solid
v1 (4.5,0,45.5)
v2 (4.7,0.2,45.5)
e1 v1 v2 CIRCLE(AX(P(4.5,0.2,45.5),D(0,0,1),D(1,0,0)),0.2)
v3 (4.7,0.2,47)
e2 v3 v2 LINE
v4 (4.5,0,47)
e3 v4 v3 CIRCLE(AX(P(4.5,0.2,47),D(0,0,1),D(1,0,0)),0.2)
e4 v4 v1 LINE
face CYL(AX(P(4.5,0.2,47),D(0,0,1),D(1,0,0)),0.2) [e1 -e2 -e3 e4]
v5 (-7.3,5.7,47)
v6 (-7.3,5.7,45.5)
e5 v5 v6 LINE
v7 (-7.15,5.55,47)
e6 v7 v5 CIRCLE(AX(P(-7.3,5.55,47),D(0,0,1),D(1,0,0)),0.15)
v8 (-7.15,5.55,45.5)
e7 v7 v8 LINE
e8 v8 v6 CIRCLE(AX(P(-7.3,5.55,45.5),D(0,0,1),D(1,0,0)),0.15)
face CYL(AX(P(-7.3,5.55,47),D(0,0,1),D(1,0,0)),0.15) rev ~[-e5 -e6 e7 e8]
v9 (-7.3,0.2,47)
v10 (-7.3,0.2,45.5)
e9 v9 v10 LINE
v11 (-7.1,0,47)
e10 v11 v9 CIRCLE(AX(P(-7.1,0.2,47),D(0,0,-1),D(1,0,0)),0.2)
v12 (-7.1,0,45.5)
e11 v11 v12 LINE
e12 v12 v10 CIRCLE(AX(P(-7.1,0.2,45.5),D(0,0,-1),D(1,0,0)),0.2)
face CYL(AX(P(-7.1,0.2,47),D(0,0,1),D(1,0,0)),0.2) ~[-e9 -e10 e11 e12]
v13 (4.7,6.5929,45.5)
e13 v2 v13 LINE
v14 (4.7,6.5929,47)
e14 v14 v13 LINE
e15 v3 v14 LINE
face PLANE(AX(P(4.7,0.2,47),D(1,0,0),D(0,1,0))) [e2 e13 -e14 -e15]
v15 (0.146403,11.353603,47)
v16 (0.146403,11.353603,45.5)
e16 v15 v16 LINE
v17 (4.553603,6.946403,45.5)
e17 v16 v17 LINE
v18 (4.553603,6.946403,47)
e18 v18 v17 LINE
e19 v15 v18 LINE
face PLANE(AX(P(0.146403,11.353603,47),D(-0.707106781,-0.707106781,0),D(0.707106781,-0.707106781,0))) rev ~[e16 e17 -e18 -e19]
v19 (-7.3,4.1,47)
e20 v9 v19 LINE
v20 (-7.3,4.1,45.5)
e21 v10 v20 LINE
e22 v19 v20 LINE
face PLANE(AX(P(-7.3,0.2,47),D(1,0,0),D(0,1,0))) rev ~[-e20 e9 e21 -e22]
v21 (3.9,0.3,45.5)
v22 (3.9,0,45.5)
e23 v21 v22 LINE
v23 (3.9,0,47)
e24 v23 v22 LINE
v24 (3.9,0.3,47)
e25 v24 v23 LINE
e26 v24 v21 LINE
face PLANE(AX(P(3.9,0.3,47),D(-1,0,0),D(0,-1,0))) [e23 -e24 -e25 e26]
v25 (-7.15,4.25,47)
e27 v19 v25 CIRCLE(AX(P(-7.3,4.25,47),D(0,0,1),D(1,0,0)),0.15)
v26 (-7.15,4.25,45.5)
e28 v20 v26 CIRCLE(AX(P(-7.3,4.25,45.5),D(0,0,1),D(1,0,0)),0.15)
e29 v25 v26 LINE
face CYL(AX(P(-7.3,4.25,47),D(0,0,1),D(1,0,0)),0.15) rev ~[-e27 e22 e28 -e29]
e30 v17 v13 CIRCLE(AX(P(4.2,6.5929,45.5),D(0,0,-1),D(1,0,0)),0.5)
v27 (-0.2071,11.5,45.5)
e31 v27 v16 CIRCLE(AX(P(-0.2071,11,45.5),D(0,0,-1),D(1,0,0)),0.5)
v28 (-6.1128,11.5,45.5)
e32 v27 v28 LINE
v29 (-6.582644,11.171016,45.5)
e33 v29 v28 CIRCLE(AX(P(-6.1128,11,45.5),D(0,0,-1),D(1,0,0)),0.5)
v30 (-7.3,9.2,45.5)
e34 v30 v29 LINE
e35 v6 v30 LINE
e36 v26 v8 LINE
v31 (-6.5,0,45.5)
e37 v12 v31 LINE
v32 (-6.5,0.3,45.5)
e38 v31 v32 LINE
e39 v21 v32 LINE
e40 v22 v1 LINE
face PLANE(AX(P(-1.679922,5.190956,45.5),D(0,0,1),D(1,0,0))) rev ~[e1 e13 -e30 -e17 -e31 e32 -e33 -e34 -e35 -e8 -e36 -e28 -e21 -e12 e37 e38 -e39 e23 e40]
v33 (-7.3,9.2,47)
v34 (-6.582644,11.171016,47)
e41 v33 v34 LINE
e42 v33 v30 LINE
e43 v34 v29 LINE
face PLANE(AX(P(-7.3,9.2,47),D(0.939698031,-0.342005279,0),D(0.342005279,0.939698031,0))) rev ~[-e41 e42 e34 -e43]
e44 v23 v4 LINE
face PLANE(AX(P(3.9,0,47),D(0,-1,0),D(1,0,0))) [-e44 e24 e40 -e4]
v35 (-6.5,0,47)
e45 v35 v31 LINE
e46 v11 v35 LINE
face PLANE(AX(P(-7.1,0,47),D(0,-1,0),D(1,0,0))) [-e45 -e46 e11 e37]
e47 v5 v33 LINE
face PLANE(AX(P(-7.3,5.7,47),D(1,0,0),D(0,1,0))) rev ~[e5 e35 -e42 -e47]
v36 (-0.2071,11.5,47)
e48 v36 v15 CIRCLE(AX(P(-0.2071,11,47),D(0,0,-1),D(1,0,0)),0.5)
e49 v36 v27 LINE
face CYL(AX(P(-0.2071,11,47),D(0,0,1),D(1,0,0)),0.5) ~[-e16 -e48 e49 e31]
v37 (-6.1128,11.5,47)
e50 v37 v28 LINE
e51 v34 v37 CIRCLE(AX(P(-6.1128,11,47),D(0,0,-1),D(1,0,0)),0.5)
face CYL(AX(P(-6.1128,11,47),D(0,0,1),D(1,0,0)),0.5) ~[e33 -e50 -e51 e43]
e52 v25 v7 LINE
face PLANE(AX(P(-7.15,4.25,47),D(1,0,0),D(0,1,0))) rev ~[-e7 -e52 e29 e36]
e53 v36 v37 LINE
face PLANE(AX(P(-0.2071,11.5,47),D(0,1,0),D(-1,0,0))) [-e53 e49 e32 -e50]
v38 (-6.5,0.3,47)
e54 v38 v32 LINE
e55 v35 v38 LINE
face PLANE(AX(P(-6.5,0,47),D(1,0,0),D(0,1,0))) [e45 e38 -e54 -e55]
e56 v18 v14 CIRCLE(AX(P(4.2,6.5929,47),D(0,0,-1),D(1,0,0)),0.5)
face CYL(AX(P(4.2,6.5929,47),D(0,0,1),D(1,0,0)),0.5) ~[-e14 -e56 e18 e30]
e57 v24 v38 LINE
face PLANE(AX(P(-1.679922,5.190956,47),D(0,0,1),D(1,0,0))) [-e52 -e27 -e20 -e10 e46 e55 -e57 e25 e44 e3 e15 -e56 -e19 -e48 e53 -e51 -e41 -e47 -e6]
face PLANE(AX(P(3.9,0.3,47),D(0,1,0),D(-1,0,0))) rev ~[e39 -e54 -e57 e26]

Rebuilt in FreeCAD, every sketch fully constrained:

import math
import FreeCAD as App
import Part
import Sketcher

V = App.Vector
Q = App.Units.Quantity

doc = App.newDocument("Part")
body = doc.addObject("PartDesign::Body", "Body")

# Sketch on XY plane
sketch1 = body.newObject("Sketcher::SketchObject", "Sketch")
sketch1.AttachmentSupport = (doc.getObject("XY_Plane"), [""])
sketch1.MapMode = "FlatFace"
sketch1.AttachmentOffset = App.Placement(V(0, 0, 47), App.Rotation())
sketch1.addGeometry([
    Part.ArcOfCircle(Part.Circle(V(-0.21, 11, 0), V(0, 0, 1), 0.5), math.radians(45), math.radians(90)),  # 0
    Part.LineSegment(V(-0.21, 11.5, 0), V(-6.11, 11.5, 0)),  # 1
    Part.ArcOfCircle(Part.Circle(V(-6.11, 11, 0), V(0, 0, 1), 0.5), math.radians(90), math.radians(160)),  # 2
    Part.LineSegment(V(-6.58, 11.17, 0), V(-7.3, 9.2, 0)),  # 3
    Part.LineSegment(V(-7.3, 9.2, 0), V(-7.3, 5.7, 0)),  # 4
    Part.ArcOfCircle(Part.Circle(V(-7.3, 5.55, 0), V(0, 0, 1), 0.15), math.radians(0), math.radians(90)),  # 5
    Part.LineSegment(V(-7.15, 5.55, 0), V(-7.15, 4.25, 0)),  # 6
    Part.ArcOfCircle(Part.Circle(V(-7.3, 4.25, 0), V(0, 0, 1), 0.15), math.radians(-90), math.radians(0)),  # 7
    Part.LineSegment(V(-7.3, 4.1, 0), V(-7.3, 0.2, 0)),  # 8
    Part.ArcOfCircle(Part.Circle(V(-7.1, 0.2, 0), V(0, 0, 1), 0.2), math.radians(180), math.radians(270)),  # 9
    Part.LineSegment(V(-7.1, 0, 0), V(-6.5, 0, 0)),  # 10
    Part.LineSegment(V(-6.5, 0, 0), V(-6.5, 0.3, 0)),  # 11
    Part.LineSegment(V(-6.5, 0.3, 0), V(3.9, 0.3, 0)),  # 12
    Part.LineSegment(V(3.9, 0.3, 0), V(3.9, 0, 0)),  # 13
    Part.LineSegment(V(3.9, 0, 0), V(4.5, 0, 0)),  # 14
    Part.ArcOfCircle(Part.Circle(V(4.5, 0.2, 0), V(0, 0, 1), 0.2), math.radians(-90), math.radians(0)),  # 15
    Part.LineSegment(V(4.7, 0.2, 0), V(4.7, 6.59, 0)),  # 16
    Part.ArcOfCircle(Part.Circle(V(4.2, 6.59, 0), V(0, 0, 1), 0.5), math.radians(0), math.radians(45)),  # 17
    Part.LineSegment(V(4.55, 6.95, 0), V(0.15, 11.35, 0)),  # 18
], False)
sketch1.addConstraint([
    Sketcher.Constraint("Tangent", 0, 2, 1, 1),
    Sketcher.Constraint("Tangent", 1, 2, 2, 1),
    Sketcher.Constraint("Tangent", 2, 2, 3, 1),
    Sketcher.Constraint("Coincident", 3, 2, 4, 1),
    Sketcher.Constraint("Coincident", 4, 2, 5, 2),
    Sketcher.Constraint("Tangent", 5, 1, 6, 1),
    Sketcher.Constraint("Tangent", 6, 2, 7, 2),
    Sketcher.Constraint("Coincident", 7, 1, 8, 1),
    Sketcher.Constraint("Tangent", 8, 2, 9, 1),
    Sketcher.Constraint("Tangent", 9, 2, 10, 1),
    Sketcher.Constraint("Coincident", 10, 2, 11, 1),
    Sketcher.Constraint("Coincident", 11, 2, 12, 1),
    Sketcher.Constraint("Coincident", 12, 2, 13, 1),
    Sketcher.Constraint("Coincident", 13, 2, 14, 1),
    Sketcher.Constraint("Tangent", 14, 2, 15, 1),
    Sketcher.Constraint("Tangent", 15, 2, 16, 1),
    Sketcher.Constraint("Tangent", 16, 2, 17, 1),
    Sketcher.Constraint("Tangent", 17, 2, 18, 1),
    Sketcher.Constraint("Tangent", 18, 2, 0, 1),
    Sketcher.Constraint("Horizontal", 1),
    Sketcher.Constraint("Vertical", 4),
    Sketcher.Constraint("Vertical", 6),
    Sketcher.Constraint("Vertical", 8),
    Sketcher.Constraint("Horizontal", 10),
    Sketcher.Constraint("Vertical", 11),
    Sketcher.Constraint("Horizontal", 12),
    Sketcher.Constraint("Vertical", 13),
    Sketcher.Constraint("Horizontal", 14),
    Sketcher.Constraint("Vertical", 16),
    Sketcher.Constraint("Equal", 0, 2),
    Sketcher.Constraint("Equal", 5, 7),
    Sketcher.Constraint("Equal", 9, 15),
    Sketcher.Constraint("Equal", 2, 17),
    Sketcher.Constraint("PointOnObject", 9, 2, -1),
    Sketcher.Constraint("PointOnObject", 13, 2, -1),
    Sketcher.Constraint("Vertical", 7, 3, 3, 2),
    Sketcher.Constraint("Vertical", 4, 2, 7, 1),
    Sketcher.Constraint("Equal", 10, 14),
    Sketcher.Constraint("Radius", 0, 0.5),
    Sketcher.Constraint("Radius", 9, 0.2),
    Sketcher.Constraint("Angle", 3, Q("-110.0004 deg")),
    Sketcher.Constraint("Angle", 18, Q("135 deg")),
    Sketcher.Constraint("Radius", 5, 0.15),
    Sketcher.Constraint("DistanceX", 10, 1, 10, 2, 0.6),
    Sketcher.Constraint("DistanceX", 12, 1, 12, 2, 10.4),
    Sketcher.Constraint("DistanceY", 4, 2, 4, 1, 3.5),
    Sketcher.Constraint("DistanceY", 6, 2, 6, 1, 1.3),
    Sketcher.Constraint("DistanceY", 8, 2, 8, 1, 3.9),
    Sketcher.Constraint("DistanceY", 11, 1, 11, 2, 0.3),
    Sketcher.Constraint("DistanceY", -1, 1, 0, 3, 11.0),
    Sketcher.Constraint("DistanceX", 5, 3, -1, 1, 7.3),
    Sketcher.Constraint("DistanceY", 16, 1, 16, 2, 6.393),
])
pad1 = body.newObject("PartDesign::Pad", "Pad")
pad1.Profile = sketch1
pad1.Length = 1.5
pad1.Reversed = True

doc.recompute()
